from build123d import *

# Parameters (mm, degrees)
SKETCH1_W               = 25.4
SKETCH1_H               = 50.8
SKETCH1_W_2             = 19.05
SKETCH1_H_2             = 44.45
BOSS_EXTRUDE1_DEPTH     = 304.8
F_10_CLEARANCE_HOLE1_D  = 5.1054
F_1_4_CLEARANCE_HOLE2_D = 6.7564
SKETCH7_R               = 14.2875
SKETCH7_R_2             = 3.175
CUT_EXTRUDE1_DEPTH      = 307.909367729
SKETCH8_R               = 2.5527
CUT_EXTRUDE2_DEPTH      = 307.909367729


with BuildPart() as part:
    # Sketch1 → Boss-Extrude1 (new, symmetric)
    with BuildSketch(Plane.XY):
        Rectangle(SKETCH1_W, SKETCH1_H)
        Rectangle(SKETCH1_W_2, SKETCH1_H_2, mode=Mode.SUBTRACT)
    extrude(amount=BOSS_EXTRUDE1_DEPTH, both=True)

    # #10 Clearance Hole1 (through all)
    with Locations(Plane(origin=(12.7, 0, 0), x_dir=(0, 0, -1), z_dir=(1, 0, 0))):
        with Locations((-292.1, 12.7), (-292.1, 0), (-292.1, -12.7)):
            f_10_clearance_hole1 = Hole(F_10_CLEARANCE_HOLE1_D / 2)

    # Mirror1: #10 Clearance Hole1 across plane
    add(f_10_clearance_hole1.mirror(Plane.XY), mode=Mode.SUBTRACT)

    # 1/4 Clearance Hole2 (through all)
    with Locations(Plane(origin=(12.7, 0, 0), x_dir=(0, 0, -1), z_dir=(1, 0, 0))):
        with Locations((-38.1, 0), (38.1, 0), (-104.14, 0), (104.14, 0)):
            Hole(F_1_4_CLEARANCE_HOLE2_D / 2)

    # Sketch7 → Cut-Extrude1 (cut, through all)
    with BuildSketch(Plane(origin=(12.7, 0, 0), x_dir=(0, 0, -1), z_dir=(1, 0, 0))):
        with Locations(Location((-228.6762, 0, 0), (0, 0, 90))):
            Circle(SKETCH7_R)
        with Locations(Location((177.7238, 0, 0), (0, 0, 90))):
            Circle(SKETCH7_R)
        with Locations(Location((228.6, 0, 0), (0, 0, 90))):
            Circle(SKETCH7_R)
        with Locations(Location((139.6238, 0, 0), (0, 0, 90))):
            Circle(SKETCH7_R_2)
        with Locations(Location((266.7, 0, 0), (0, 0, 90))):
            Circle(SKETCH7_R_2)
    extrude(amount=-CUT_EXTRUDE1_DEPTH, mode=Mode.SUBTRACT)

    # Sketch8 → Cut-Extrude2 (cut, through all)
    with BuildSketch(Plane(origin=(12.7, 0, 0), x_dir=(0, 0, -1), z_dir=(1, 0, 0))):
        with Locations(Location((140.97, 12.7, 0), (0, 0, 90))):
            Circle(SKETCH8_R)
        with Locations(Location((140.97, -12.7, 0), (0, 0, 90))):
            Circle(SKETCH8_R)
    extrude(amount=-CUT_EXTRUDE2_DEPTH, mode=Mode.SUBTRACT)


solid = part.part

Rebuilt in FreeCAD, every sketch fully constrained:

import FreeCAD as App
import Part
import Sketcher
Q = App.Units.Quantity


def add_polygon(sketch, points):
    """Adds a closed chain of lines whose ends are joined by coincident constraints."""
    first, n = sketch.GeometryCount, len(points)
    for a, b in zip(points, points[1:] + points[:1]):
        sketch.addGeometry(Part.LineSegment(App.Vector(*a, 0), App.Vector(*b, 0)), False)
    for i in range(n):
        sketch.addConstraint(Sketcher.Constraint("Coincident", first + i, 2, first + (i + 1) % n, 1))

doc = App.newDocument("Part")
params = doc.addObject("Spreadsheet::Sheet", "Params")
for row, (alias, value) in enumerate([
    ("sketch1_width", "1 in"),
    ("sketch1_height", "2 in"),
    ("sketch1_width2", "0.75 in"),
    ("sketch1_height2", "1.75 in"),
    ("pad1_length", "24 in"),
    ("sketch2_diameter", "0.201 in"),
    ("hole_diameter", "0.201 in"),
    ("sketch3_diameter", "0.266 in"),
    ("hole2_diameter", "0.266 in"),
    ("sketch4_diameter", "0.25 in"),
    ("sketch4_diameter2", "1.125 in"),
    ("sketch5_diameter", "0.201 in"),
], start=1):
    params.set(f"A{row}", alias)
    params.set(f"B{row}", "=" + value)
    params.setAlias(f"B{row}", alias)

body = doc.addObject("PartDesign::Body", "Body")

# Sketch on XY plane
sketch1 = body.newObject("Sketcher::SketchObject", "Sketch")
sketch1.AttachmentSupport = (doc.getObject("XY_Plane"), [""])
sketch1.MapMode = "FlatFace"
add_polygon(sketch1, [(-13, 25), (-13, -25), (13, -25), (13, 25)])  # lines 0-3
add_polygon(sketch1, [(10, -22), (-10, -22), (-10, 22), (10, 22)])  # lines 4-7
sketch1.addConstraint([
    Sketcher.Constraint("Vertical", 0),
    Sketcher.Constraint("Horizontal", 1),
    Sketcher.Constraint("Vertical", 2),
    Sketcher.Constraint("Horizontal", 3),
    Sketcher.Constraint("Horizontal", 4),
    Sketcher.Constraint("Vertical", 5),
    Sketcher.Constraint("Horizontal", 6),
    Sketcher.Constraint("Vertical", 7),
    Sketcher.Constraint("Symmetric", 0, 2, 2, 2, -1, 1),
    Sketcher.Constraint("Symmetric", 4, 2, 6, 2, -1, 1),
    Sketcher.Constraint("DistanceX", 1, 1, 1, 2, Q("1 in")),
    Sketcher.Constraint("DistanceY", 0, 2, 0, 1, Q("2 in")),
    Sketcher.Constraint("DistanceX", 4, 2, 4, 1, Q("0.75 in")),
    Sketcher.Constraint("DistanceY", 5, 1, 5, 2, Q("1.75 in")),
])
sketch1.setExpression("Constraints[18]", "Params.sketch1_width")
sketch1.setExpression("Constraints[19]", "Params.sketch1_height")
sketch1.setExpression("Constraints[20]", "Params.sketch1_width2")
sketch1.setExpression("Constraints[21]", "Params.sketch1_height2")
pad1 = body.newObject("PartDesign::Pad", "Pad")
pad1.Profile = sketch1
pad1.setExpression("Length", "Params.pad1_length")
pad1.Midplane = True

# Sketch on YZ plane
sketch2 = body.newObject("Sketcher::SketchObject", "Sketch001")
sketch2.AttachmentSupport = (doc.getObject("YZ_Plane"), [""])
sketch2.MapMode = "FlatFace"
sketch2.AttachmentOffset = App.Placement(App.Vector(0, 0, 0.5 * 25.4), App.Rotation())
sketch2.addGeometry([
    Part.Circle(App.Vector(12.7, 292.1, 0), App.Vector(0, 0, 1), 2.6),
    Part.Circle(App.Vector(0, 292.1, 0), App.Vector(0, 0, 1), 2.6),
    Part.Circle(App.Vector(-12.7, 292.1, 0), App.Vector(0, 0, 1), 2.6),
], False)
sketch2.addConstraint([
    Sketcher.Constraint("Equal", 0, 1),
    Sketcher.Constraint("Equal", 1, 2),
    Sketcher.Constraint("Symmetric", 0, 3, 2, 3, -2),
    Sketcher.Constraint("PointOnObject", 1, 3, -2),
    Sketcher.Constraint("Horizontal", 0, 3, 1, 3),
    Sketcher.Constraint("Diameter", 0, Q("0.201 in")),
    Sketcher.Constraint("DistanceX", 2, 3, 0, 3, Q("1 in")),
    Sketcher.Constraint("DistanceY", -1, 1, 0, 3, Q("11.5 in")),
])
sketch2.setExpression("Constraints[5]", "Params.sketch2_diameter")
doc.recompute()
hole = body.newObject("PartDesign::Hole", "Hole")
hole.Profile = sketch2
hole.ThreadType = "None"
hole.setExpression("Diameter", "Params.hole_diameter")
hole.DepthType = "ThroughAll"
doc.recompute()

mirrored = body.newObject("PartDesign::Mirrored", "Mirrored")
mirrored.Originals = [hole]
mirrored.MirrorPlane = (doc.getObject("XY_Plane"), [""])
body.Tip = mirrored

# Sketch on YZ plane
sketch3 = body.newObject("Sketcher::SketchObject", "Sketch002")
sketch3.AttachmentSupport = (doc.getObject("YZ_Plane"), [""])
sketch3.MapMode = "FlatFace"
sketch3.AttachmentOffset = App.Placement(App.Vector(0, 0, 0.5 * 25.4), App.Rotation())
sketch3.addGeometry([
    Part.Circle(App.Vector(0, 38.1, 0), App.Vector(0, 0, 1), 3.4),
    Part.Circle(App.Vector(0, -38.1, 0), App.Vector(0, 0, 1), 3.4),
    Part.Circle(App.Vector(0, 104.1, 0), App.Vector(0, 0, 1), 3.4),
    Part.Circle(App.Vector(0, -104.1, 0), App.Vector(0, 0, 1), 3.4),
], False)
sketch3.addConstraint([
    Sketcher.Constraint("Equal", 0, 1),
    Sketcher.Constraint("Equal", 1, 2),
    Sketcher.Constraint("Equal", 2, 3),
    Sketcher.Constraint("Symmetric", 0, 3, 1, 3, -1, 1),
    Sketcher.Constraint("Symmetric", 2, 3, 3, 3, -1, 1),
    Sketcher.Constraint("PointOnObject", 0, 3, -2),
    Sketcher.Constraint("PointOnObject", 2, 3, -2),
    Sketcher.Constraint("Diameter", 0, Q("0.266 in")),
    Sketcher.Constraint("DistanceY", 1, 3, 0, 3, Q("3 in")),
    Sketcher.Constraint("DistanceY", -1, 1, 2, 3, Q("4.1 in")),
])
sketch3.setExpression("Constraints[7]", "Params.sketch3_diameter")
doc.recompute()
hole2 = body.newObject("PartDesign::Hole", "Hole001")
hole2.Profile = sketch3
hole2.ThreadType = "None"
hole2.setExpression("Diameter", "Params.hole2_diameter")
hole2.DepthType = "ThroughAll"

# Sketch on YZ plane
sketch4 = body.newObject("Sketcher::SketchObject", "Sketch003")
sketch4.AttachmentSupport = (doc.getObject("YZ_Plane"), [""])
sketch4.MapMode = "FlatFace"
sketch4.AttachmentOffset = App.Placement(App.Vector(0, 0, 0.5 * 25.4), App.Rotation())
sketch4.addGeometry([
    Part.Circle(App.Vector(0, 228.7, 0), App.Vector(0, 0, 1), 14.3),  # 0
    Part.Circle(App.Vector(0, -177.7, 0), App.Vector(0, 0, 1), 14.3),  # 1
    Part.Circle(App.Vector(0, -228.6, 0), App.Vector(0, 0, 1), 14.3),  # 2
    Part.Circle(App.Vector(0, -139.6, 0), App.Vector(0, 0, 1), 3.2),  # 3
    Part.Circle(App.Vector(0, -266.7, 0), App.Vector(0, 0, 1), 3.2),  # 4
], False)
sketch4.addConstraint([
    Sketcher.Constraint("Equal", 0, 1),
    Sketcher.Constraint("Equal", 1, 2),
    Sketcher.Constraint("Equal", 3, 4),
    Sketcher.Constraint("PointOnObject", 0, 3, -2),
    Sketcher.Constraint("PointOnObject", 1, 3, -2),
    Sketcher.Constraint("PointOnObject", 2, 3, -2),
    Sketcher.Constraint("PointOnObject", 3, 3, -2),
    Sketcher.Constraint("PointOnObject", 4, 3, -2),
    Sketcher.Constraint("Diameter", 3, Q("0.25 in")),
    Sketcher.Constraint("Diameter", 0, Q("1.125 in")),
    Sketcher.Constraint("DistanceY", 2, 3, -1, 1, Q("9 in")),
    Sketcher.Constraint("DistanceY", 1, 3, 0, 3, Q("16 in")),
    Sketcher.Constraint("DistanceY", 4, 3, -1, 1, Q("10.5 in")),
    Sketcher.Constraint("DistanceY", 1, 3, 3, 3, Q("1.5 in")),
    Sketcher.Constraint("DistanceY", -1, 1, 0, 3, Q("9.003 in")),
])
sketch4.setExpression("Constraints[8]", "Params.sketch4_diameter")
sketch4.setExpression("Constraints[9]", "Params.sketch4_diameter2")
pocket1 = body.newObject("PartDesign::Pocket", "Pocket")
pocket1.Profile = sketch4
pocket1.Type = "ThroughAll"

# Sketch on YZ plane
sketch5 = body.newObject("Sketcher::SketchObject", "Sketch004")
sketch5.AttachmentSupport = (doc.getObject("YZ_Plane"), [""])
sketch5.MapMode = "FlatFace"
sketch5.AttachmentOffset = App.Placement(App.Vector(0, 0, 0.5 * 25.4), App.Rotation())
sketch5.addGeometry([
    Part.Circle(App.Vector(12.7, -141, 0), App.Vector(0, 0, 1), 2.6),
    Part.Circle(App.Vector(-12.7, -141, 0), App.Vector(0, 0, 1), 2.6),
], False)
sketch5.addConstraint([
    Sketcher.Constraint("Equal", 0, 1),
    Sketcher.Constraint("Symmetric", 0, 3, 1, 3, -2),
    Sketcher.Constraint("Diameter", 0, Q("0.201 in")),
    Sketcher.Constraint("DistanceX", 1, 3, 0, 3, Q("1 in")),
    Sketcher.Constraint("DistanceY", 0, 3, -1, 1, Q("5.55 in")),
])
sketch5.setExpression("Constraints[2]", "Params.sketch5_diameter")
pocket2 = body.newObject("PartDesign::Pocket", "Pocket001")
pocket2.Profile = sketch5
pocket2.Type = "ThroughAll"

doc.recompute()
